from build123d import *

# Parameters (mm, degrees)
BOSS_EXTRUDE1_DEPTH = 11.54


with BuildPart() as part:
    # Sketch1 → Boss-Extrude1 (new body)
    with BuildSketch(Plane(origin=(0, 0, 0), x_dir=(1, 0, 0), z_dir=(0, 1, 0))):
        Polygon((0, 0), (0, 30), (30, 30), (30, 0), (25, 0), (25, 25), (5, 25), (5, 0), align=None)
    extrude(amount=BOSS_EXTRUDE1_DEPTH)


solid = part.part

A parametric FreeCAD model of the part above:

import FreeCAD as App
import Part
import Sketcher
Q = App.Units.Quantity


def add_polygon(sketch, points):
    """Adds a closed chain of lines whose ends are joined by coincident constraints."""
    first, n = sketch.GeometryCount, len(points)
    for a, b in zip(points, points[1:] + points[:1]):
        sketch.addGeometry(Part.LineSegment(App.Vector(*a, 0), App.Vector(*b, 0)), False)
    for i in range(n):
        sketch.addConstraint(Sketcher.Constraint("Coincident", first + i, 2, first + (i + 1) % n, 1))

doc = App.newDocument("Part")
body = doc.addObject("PartDesign::Body", "Body")

sketch1 = doc.addObject("Sketcher::SketchObject", "Sketch")
body.addObject(sketch1)
sketch1.AttachmentSupport = (doc.XZ_Plane, [""])
sketch1.MapMode = "FlatFace"
add_polygon(sketch1, [(0, -30), (0, 0), (5, 0), (5, -25), (25, -25), (25, 0), (30, 0), (30, -30)])
sketch1.addConstraint([
    Sketcher.Constraint("Vertical", 0),
    Sketcher.Constraint("Horizontal", 1),
    Sketcher.Constraint("Vertical", 2),
    Sketcher.Constraint("Horizontal", 3),
    Sketcher.Constraint("Vertical", 4),
    Sketcher.Constraint("Horizontal", 5),
    Sketcher.Constraint("Vertical", 6),
    Sketcher.Constraint("Horizontal", 7),
    Sketcher.Constraint("Coincident", 0, 2, -1, 1),
    Sketcher.Constraint("PointOnObject", 4, 2, -1),
    Sketcher.Constraint("Equal", 1, 5),
    Sketcher.Constraint("Equal", 7, 0),
    Sketcher.Constraint("DistanceX", 1, 1, 1, 2, Q("5 mm")),
    Sketcher.Constraint("DistanceX", 3, 1, 3, 2, Q("20 mm")),
    Sketcher.Constraint("DistanceY", 2, 2, 2, 1, Q("25 mm")),
])
pad1 = doc.addObject("PartDesign::Pad", "Pad")
body.addObject(pad1)
pad1.Profile = sketch1
pad1.Length = 11.54
pad1.Reversed = True

doc.recompute()
